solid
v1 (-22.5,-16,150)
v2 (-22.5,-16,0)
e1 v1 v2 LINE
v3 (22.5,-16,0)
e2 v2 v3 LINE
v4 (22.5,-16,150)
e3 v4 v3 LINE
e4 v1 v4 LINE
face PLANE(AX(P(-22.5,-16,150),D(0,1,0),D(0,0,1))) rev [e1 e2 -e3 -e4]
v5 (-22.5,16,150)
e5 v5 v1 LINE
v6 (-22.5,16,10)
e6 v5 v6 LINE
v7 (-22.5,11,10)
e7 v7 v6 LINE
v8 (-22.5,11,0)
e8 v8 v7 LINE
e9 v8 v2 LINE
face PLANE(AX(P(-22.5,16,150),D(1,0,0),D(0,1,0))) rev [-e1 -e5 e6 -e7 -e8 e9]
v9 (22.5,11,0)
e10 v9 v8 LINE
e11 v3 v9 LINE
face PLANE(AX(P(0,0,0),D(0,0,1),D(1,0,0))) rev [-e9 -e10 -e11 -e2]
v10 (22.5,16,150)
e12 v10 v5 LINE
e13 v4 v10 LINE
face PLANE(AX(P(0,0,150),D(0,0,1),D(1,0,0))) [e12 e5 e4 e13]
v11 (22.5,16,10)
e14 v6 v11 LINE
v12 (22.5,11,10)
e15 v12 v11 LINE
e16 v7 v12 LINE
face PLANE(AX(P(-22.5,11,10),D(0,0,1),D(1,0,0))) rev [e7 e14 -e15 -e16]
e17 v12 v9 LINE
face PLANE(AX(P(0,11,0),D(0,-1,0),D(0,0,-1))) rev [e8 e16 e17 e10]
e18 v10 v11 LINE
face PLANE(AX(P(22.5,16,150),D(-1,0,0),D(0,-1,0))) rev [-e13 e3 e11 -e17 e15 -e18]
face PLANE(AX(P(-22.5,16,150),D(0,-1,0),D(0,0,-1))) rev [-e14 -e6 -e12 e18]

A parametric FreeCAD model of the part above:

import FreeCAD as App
import Part
import Sketcher

doc = App.newDocument("Part")
params = doc.addObject("Spreadsheet::Sheet", "Params")
for row, (alias, value) in enumerate([
    ("sketch1_width", "45 mm"),
    ("sketch1_height", "32 mm"),
    ("pad1_length", "150 mm"),
    ("sketch2_width", "45 mm"),
    ("sketch2_height", "10 mm"),
    ("pocket1_length", "5 mm"),
], start=1):
    params.set(f"A{row}", alias)
    params.set(f"B{row}", "=" + value)
    params.setAlias(f"B{row}", alias)

body = doc.addObject("PartDesign::Body", "Body")

# Sketch on XY plane
sketch1 = body.newObject("Sketcher::SketchObject", "Sketch")
sketch1.AttachmentSupport = (doc.getObject("XY_Plane"), [""])
sketch1.MapMode = "FlatFace"
sketch1.addGeometry([
    Part.LineSegment(App.Vector(-22, 16, 0), App.Vector(-22, -16, 0)),
    Part.LineSegment(App.Vector(-22, -16, 0), App.Vector(22, -16, 0)),
    Part.LineSegment(App.Vector(22, -16, 0), App.Vector(22, 16, 0)),
    Part.LineSegment(App.Vector(22, 16, 0), App.Vector(-22, 16, 0)),
], False)
sketch1.addConstraint([
    Sketcher.Constraint("Coincident", 0, 2, 1, 1),
    Sketcher.Constraint("Coincident", 1, 2, 2, 1),
    Sketcher.Constraint("Coincident", 2, 2, 3, 1),
    Sketcher.Constraint("Coincident", 3, 2, 0, 1),
    Sketcher.Constraint("Vertical", 0),
    Sketcher.Constraint("Horizontal", 1),
    Sketcher.Constraint("Vertical", 2),
    Sketcher.Constraint("Horizontal", 3),
    Sketcher.Constraint("Symmetric", 0, 2, 2, 2, -1, 1),
    Sketcher.Constraint("DistanceX", 1, 1, 1, 2, 45.0),
    Sketcher.Constraint("DistanceY", 0, 2, 0, 1, 32.0),
])
sketch1.setExpression("Constraints[9]", "Params.sketch1_width")
sketch1.setExpression("Constraints[10]", "Params.sketch1_height")
pad1 = body.newObject("PartDesign::Pad", "Pad")
pad1.Profile = sketch1
pad1.setExpression("Length", "Params.pad1_length")

# Sketch on XZ plane
sketch2 = body.newObject("Sketcher::SketchObject", "Sketch001")
sketch2.AttachmentSupport = (doc.getObject("XZ_Plane"), [""])
sketch2.MapMode = "FlatFace"
sketch2.AttachmentOffset = App.Placement(App.Vector(0, 0, -16), App.Rotation())
sketch2.addGeometry([
    Part.LineSegment(App.Vector(-22, 0, 0), App.Vector(-22, 10, 0)),
    Part.LineSegment(App.Vector(-22, 10, 0), App.Vector(22, 10, 0)),
    Part.LineSegment(App.Vector(22, 10, 0), App.Vector(22, 0, 0)),
    Part.LineSegment(App.Vector(22, 0, 0), App.Vector(-22, 0, 0)),
], False)
sketch2.addConstraint([
    Sketcher.Constraint("Coincident", 0, 2, 1, 1),
    Sketcher.Constraint("Coincident", 1, 2, 2, 1),
    Sketcher.Constraint("Coincident", 2, 2, 3, 1),
    Sketcher.Constraint("Coincident", 3, 2, 0, 1),
    Sketcher.Constraint("Vertical", 0),
    Sketcher.Constraint("Horizontal", 1),
    Sketcher.Constraint("Vertical", 2),
    Sketcher.Constraint("Horizontal", 3),
    Sketcher.Constraint("Symmetric", 2, 2, 3, 2, -1, 1),
    Sketcher.Constraint("DistanceX", 1, 1, 1, 2, 45.0),
    Sketcher.Constraint("DistanceY", 0, 1, 0, 2, 10.0),
])
sketch2.setExpression("Constraints[9]", "Params.sketch2_width")
sketch2.setExpression("Constraints[10]", "Params.sketch2_height")
pocket1 = body.newObject("PartDesign::Pocket", "Pocket")
pocket1.Profile = sketch2
pocket1.setExpression("Length", "Params.pocket1_length")
pocket1.Reversed = True

doc.recompute()
